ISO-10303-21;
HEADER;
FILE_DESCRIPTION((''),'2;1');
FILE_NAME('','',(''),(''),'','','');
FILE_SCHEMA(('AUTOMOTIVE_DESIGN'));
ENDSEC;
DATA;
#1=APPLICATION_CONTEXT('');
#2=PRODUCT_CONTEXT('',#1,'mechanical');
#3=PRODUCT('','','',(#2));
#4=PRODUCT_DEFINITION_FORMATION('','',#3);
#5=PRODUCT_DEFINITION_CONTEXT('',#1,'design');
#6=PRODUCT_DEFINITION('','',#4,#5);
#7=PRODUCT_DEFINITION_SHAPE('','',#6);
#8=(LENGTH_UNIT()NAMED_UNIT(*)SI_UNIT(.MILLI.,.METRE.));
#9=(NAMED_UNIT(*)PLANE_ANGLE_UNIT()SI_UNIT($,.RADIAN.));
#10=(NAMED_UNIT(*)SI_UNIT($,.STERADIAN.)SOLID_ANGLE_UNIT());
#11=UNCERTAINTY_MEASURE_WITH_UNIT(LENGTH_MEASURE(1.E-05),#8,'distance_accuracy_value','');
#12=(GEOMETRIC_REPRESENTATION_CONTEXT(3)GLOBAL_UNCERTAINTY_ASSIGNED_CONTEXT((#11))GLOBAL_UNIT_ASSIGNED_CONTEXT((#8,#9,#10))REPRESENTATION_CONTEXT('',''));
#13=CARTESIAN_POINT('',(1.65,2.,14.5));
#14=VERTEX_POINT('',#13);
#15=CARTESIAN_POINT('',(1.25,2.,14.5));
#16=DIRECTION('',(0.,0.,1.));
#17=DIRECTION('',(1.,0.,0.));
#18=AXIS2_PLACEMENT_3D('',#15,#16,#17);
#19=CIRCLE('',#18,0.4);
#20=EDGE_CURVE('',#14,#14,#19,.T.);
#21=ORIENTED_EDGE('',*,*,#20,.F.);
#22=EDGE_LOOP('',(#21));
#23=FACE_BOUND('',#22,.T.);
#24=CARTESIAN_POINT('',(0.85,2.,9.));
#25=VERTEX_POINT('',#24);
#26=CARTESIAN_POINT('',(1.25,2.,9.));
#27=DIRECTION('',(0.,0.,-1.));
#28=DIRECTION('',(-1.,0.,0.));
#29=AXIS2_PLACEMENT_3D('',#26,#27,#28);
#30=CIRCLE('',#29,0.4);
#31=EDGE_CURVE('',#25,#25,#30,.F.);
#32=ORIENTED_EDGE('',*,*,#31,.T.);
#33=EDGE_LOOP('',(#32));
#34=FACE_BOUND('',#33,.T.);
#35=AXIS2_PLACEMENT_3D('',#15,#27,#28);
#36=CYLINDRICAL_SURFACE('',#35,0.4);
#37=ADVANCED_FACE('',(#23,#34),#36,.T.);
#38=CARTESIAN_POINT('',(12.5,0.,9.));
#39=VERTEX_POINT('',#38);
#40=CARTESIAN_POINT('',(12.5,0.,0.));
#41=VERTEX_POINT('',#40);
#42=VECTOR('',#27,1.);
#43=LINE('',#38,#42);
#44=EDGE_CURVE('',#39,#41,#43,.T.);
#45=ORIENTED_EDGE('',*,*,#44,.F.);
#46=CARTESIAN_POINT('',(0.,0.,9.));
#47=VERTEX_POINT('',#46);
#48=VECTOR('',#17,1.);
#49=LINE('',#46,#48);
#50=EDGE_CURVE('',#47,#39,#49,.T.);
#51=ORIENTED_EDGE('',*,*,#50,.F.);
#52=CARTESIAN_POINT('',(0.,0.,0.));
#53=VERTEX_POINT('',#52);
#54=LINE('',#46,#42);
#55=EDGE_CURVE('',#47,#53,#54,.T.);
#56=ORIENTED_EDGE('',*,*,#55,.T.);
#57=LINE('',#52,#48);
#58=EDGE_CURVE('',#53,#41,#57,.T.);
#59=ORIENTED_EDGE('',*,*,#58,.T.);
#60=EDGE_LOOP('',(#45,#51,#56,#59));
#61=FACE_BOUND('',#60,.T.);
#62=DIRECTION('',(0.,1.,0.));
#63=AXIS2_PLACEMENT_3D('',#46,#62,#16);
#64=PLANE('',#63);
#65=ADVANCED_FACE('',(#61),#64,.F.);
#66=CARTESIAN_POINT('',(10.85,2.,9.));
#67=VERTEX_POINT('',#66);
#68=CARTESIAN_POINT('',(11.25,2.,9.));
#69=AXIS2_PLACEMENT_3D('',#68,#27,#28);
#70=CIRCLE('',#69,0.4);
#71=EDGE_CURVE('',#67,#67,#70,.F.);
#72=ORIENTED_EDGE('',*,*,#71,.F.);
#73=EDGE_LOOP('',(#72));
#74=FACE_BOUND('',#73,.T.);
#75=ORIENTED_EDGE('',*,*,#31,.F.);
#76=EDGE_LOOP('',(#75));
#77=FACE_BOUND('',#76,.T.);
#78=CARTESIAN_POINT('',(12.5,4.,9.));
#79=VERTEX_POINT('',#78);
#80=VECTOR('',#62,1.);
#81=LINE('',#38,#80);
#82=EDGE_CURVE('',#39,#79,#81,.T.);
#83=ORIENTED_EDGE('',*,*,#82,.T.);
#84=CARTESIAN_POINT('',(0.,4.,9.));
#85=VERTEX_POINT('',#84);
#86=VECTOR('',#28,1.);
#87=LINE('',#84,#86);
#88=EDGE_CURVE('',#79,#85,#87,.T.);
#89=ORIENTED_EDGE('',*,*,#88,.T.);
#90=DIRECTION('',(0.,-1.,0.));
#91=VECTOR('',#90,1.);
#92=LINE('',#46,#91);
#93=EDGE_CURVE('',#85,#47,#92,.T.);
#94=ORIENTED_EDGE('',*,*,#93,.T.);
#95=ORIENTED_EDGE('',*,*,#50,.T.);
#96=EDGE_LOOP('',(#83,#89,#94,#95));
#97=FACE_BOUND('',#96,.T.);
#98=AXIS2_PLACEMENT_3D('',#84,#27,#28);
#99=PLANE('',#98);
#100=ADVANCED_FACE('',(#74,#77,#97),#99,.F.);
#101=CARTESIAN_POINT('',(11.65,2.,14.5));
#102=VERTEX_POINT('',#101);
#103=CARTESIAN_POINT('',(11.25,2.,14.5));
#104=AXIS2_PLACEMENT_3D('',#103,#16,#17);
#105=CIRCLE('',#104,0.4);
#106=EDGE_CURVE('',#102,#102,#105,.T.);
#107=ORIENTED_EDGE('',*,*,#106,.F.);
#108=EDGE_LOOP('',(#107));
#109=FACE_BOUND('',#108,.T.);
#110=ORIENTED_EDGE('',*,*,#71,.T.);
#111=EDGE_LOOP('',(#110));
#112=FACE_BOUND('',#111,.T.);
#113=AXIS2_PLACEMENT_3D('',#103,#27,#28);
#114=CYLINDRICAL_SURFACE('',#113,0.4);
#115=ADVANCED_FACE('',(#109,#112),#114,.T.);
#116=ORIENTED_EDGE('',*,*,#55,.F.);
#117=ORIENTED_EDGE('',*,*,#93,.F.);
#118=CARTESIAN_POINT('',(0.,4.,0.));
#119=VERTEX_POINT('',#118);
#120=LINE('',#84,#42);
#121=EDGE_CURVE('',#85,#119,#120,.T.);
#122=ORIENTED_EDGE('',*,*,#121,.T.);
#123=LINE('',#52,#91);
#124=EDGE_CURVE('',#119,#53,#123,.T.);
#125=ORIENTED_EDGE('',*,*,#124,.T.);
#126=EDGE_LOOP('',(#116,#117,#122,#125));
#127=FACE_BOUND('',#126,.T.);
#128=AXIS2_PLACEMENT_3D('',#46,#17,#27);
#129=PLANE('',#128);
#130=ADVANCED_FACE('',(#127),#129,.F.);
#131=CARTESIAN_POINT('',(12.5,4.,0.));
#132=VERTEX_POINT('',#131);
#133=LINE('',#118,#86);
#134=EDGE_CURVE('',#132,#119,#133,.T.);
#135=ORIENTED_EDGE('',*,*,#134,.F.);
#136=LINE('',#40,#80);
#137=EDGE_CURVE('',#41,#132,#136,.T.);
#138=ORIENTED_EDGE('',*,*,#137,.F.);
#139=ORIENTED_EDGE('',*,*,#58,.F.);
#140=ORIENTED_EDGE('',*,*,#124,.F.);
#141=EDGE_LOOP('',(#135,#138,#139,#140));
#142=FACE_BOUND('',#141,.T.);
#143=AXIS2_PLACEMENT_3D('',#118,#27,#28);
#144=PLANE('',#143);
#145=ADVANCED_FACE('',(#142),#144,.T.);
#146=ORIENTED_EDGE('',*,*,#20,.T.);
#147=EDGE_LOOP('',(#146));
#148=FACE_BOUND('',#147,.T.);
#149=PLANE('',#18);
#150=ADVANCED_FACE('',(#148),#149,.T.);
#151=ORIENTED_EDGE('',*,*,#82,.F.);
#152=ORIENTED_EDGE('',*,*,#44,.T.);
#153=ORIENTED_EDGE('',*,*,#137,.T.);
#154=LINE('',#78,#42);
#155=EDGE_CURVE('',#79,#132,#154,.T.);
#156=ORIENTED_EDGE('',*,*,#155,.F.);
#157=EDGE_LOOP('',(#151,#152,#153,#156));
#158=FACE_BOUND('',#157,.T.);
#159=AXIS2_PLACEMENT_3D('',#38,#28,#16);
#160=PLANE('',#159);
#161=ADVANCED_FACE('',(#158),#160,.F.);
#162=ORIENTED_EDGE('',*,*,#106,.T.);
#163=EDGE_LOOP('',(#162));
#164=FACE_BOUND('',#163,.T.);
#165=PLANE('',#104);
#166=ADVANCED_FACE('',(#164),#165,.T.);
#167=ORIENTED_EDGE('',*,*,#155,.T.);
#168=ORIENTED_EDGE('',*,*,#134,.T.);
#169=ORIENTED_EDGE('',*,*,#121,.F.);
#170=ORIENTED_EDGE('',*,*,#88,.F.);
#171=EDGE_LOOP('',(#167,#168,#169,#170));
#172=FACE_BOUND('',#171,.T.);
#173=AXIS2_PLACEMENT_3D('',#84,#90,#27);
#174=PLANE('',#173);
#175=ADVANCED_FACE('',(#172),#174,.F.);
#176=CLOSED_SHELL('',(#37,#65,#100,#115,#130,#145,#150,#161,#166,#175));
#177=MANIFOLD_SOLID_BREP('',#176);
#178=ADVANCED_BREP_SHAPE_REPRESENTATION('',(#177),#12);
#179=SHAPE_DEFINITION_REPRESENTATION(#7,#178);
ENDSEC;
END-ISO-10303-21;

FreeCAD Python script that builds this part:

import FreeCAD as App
import Part
import Sketcher
Q = App.Units.Quantity


def add_polygon(sketch, points):
    """Adds a closed chain of lines whose ends are joined by coincident constraints."""
    first, n = sketch.GeometryCount, len(points)
    for a, b in zip(points, points[1:] + points[:1]):
        sketch.addGeometry(Part.LineSegment(App.Vector(*a, 0), App.Vector(*b, 0)), False)
    for i in range(n):
        sketch.addConstraint(Sketcher.Constraint("Coincident", first + i, 2, first + (i + 1) % n, 1))

doc = App.newDocument("Part")
body = doc.addObject("PartDesign::Body", "Body")

# Sketch on XY plane
sketch1 = body.newObject("Sketcher::SketchObject", "Sketch")
sketch1.AttachmentSupport = (doc.getObject("XY_Plane"), [""])
sketch1.MapMode = "FlatFace"
add_polygon(sketch1, [(0, 4), (0, 0), (12.5, 0), (12.5, 4)])  # lines 0-3
sketch1.addConstraint([
    Sketcher.Constraint("Vertical", 0),
    Sketcher.Constraint("Horizontal", 1),
    Sketcher.Constraint("Vertical", 2),
    Sketcher.Constraint("Horizontal", 3),
    Sketcher.Constraint("Coincident", 0, 2, -1, 1),
    Sketcher.Constraint("DistanceY", 0, 2, 0, 1, Q("4 mm")),
    Sketcher.Constraint("DistanceX", 1, 1, 1, 2, Q("12.5 mm")),
])
pad1 = body.newObject("PartDesign::Pad", "Pad")
pad1.Profile = sketch1
pad1.Length = 9

# Sketch on XY plane
sketch2 = body.newObject("Sketcher::SketchObject", "Sketch001")
sketch2.AttachmentSupport = (doc.getObject("XY_Plane"), [""])
sketch2.MapMode = "FlatFace"
sketch2.AttachmentOffset = App.Placement(App.Vector(0, 0, 9), App.Rotation())
sketch2.addGeometry([
    Part.Circle(App.Vector(1.25, 2, 0), App.Vector(0, 0, 1), 0.4),
    Part.Circle(App.Vector(11.25, 2, 0), App.Vector(0, 0, 1), 0.4),
], False)
sketch2.addConstraint([
    Sketcher.Constraint("Equal", 0, 1),
    Sketcher.Constraint("Horizontal", 0, 3, 1, 3),
    Sketcher.Constraint("Diameter", 0, Q("0.8 mm")),
    Sketcher.Constraint("DistanceY", -1, 1, 0, 3, Q("2 mm")),
    Sketcher.Constraint("DistanceX", 0, 3, 1, 3, Q("10 mm")),
    Sketcher.Constraint("DistanceX", -1, 1, 0, 3, Q("1.25 mm")),
])
pad2 = body.newObject("PartDesign::Pad", "Pad001")
pad2.Profile = sketch2
pad2.Length = 5.5

doc.recompute()
